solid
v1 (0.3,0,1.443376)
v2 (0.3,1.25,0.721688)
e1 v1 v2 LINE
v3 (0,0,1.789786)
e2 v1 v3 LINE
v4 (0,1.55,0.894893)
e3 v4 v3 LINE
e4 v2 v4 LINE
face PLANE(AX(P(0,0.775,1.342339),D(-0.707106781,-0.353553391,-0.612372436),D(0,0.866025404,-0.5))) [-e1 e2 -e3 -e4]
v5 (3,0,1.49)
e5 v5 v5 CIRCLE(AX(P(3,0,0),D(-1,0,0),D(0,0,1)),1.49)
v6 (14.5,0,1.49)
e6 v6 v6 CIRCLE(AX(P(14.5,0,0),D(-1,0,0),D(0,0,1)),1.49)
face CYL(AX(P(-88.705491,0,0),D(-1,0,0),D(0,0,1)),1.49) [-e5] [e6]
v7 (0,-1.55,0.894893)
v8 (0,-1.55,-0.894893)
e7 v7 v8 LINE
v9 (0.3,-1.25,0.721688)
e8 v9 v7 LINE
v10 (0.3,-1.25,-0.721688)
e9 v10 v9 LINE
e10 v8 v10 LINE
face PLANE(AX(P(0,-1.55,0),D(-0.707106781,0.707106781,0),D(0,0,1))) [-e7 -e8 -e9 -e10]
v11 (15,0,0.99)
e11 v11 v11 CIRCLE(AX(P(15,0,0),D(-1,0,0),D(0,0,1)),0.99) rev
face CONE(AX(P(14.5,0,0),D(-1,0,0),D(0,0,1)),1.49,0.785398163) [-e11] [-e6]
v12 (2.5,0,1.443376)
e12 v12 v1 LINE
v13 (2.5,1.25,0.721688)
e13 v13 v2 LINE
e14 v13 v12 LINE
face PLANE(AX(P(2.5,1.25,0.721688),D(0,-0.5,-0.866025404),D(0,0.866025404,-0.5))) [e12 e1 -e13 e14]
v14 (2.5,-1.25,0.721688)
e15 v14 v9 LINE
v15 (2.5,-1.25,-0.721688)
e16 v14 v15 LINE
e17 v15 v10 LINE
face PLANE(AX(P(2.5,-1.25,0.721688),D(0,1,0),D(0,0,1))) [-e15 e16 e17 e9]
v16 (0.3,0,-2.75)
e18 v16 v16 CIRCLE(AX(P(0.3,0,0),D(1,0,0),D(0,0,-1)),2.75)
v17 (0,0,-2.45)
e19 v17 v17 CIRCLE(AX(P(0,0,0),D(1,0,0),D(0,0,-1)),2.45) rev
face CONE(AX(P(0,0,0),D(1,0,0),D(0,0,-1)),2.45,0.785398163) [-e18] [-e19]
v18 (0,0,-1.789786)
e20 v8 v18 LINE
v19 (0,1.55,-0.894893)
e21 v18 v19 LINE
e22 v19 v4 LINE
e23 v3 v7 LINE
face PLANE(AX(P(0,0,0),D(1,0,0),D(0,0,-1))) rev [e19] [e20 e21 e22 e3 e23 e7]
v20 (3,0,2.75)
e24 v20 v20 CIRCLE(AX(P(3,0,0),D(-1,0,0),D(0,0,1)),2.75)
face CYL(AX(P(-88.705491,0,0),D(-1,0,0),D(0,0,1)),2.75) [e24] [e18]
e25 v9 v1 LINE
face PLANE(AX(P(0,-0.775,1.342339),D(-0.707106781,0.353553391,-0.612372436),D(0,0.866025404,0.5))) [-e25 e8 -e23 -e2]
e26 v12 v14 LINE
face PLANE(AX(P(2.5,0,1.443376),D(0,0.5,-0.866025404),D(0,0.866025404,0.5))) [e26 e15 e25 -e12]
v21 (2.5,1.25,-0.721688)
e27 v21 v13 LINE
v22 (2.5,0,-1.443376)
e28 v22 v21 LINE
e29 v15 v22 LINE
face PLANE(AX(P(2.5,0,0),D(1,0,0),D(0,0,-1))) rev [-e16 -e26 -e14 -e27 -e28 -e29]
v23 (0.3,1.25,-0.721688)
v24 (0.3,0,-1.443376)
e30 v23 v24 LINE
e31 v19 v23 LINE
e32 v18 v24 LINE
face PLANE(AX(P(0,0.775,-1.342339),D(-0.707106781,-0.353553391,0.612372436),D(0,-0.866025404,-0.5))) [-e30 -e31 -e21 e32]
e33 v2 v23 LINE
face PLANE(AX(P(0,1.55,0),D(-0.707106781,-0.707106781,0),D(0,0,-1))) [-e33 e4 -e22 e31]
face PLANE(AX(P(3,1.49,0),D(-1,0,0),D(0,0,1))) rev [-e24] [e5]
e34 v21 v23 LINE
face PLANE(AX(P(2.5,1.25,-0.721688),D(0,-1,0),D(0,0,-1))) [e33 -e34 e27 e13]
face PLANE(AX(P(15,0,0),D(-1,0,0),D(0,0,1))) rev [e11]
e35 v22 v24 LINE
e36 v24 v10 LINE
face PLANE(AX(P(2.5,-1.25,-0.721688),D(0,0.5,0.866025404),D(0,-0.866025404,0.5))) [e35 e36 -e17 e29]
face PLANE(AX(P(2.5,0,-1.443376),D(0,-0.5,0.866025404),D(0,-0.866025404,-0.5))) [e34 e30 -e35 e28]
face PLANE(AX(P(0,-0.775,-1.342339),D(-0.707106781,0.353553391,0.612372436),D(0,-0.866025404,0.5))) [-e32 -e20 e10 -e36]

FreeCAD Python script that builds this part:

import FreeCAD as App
import Part
import Sketcher
from FreeCAD import Vector
Q = App.Units.Quantity


def edges_at(feature, points):
    """Names of the edges that pass closest to the given points."""
    edges = feature.Shape.Edges
    near = lambda p: min(range(len(edges)), key=lambda i: edges[i].distToShape(Part.Vertex(*p))[0])
    return sorted({f"Edge{near(p) + 1}" for p in points})


def add_polygon(sketch, points):
    """Adds a closed chain of lines whose ends are joined by coincident constraints."""
    first, n = sketch.GeometryCount, len(points)
    for a, b in zip(points, points[1:] + points[:1]):
        sketch.addGeometry(Part.LineSegment(App.Vector(*a, 0), App.Vector(*b, 0)), False)
    for i in range(n):
        sketch.addConstraint(Sketcher.Constraint("Coincident", first + i, 2, first + (i + 1) % n, 1))

doc = App.newDocument("Part")
params = doc.addObject("Spreadsheet::Sheet", "Params")
for row, (alias, value) in enumerate([
    ("sketch1_width", "15 mm"),
    ("sketch1_width2", "12 mm"),
    ("sketch1_height", "2.75 mm"),
    ("sketch1_height2", "1.49 mm"),
    ("revolution_angle", "360 deg"),
    ("chamfer_size", "0.5 mm"),
    ("chamfer2_size", "0.3 mm"),
    ("pocket1_length", "2.5 mm"),
    ("chamfer3_size", "0.3 mm"),
], start=1):
    params.set(f"A{row}", alias)
    params.set(f"B{row}", "=" + value)
    params.setAlias(f"B{row}", alias)

body = doc.addObject("PartDesign::Body", "Body")

sketch1 = body.newObject("Sketcher::SketchObject", "Sketch")
sketch1.AttachmentSupport = (doc.getObject("XY_Plane"), [""])
sketch1.MapMode = "FlatFace"
add_polygon(sketch1, [(0, 2.75), (0, 0), (15, 0), (15, 1.49), (3, 1.49), (3, 2.75)])
sketch1.addConstraint(Sketcher.Constraint("Vertical", 0))
sketch1.addConstraint(Sketcher.Constraint("Horizontal", 1))
sketch1.addConstraint(Sketcher.Constraint("Vertical", 2))
sketch1.addConstraint(Sketcher.Constraint("Horizontal", 3))
sketch1.addConstraint(Sketcher.Constraint("Vertical", 4))
sketch1.addConstraint(Sketcher.Constraint("Horizontal", 5))
sketch1.addConstraint(Sketcher.Constraint("Coincident", 0, 2, -1, 1))
sketch1.addConstraint(Sketcher.Constraint("DistanceX", 1, 1, 1, 2, 15.0))
sketch1.addConstraint(Sketcher.Constraint("DistanceX", 3, 2, 3, 1, 12.0))
sketch1.addConstraint(Sketcher.Constraint("DistanceY", 0, 2, 0, 1, 2.75))
sketch1.addConstraint(Sketcher.Constraint("DistanceY", 2, 1, 2, 2, 1.49))
sketch1.setExpression("Constraints[13]", "Params.sketch1_width")
sketch1.setExpression("Constraints[14]", "Params.sketch1_width2")
sketch1.setExpression("Constraints[15]", "Params.sketch1_height")
sketch1.setExpression("Constraints[16]", "Params.sketch1_height2")
revolution = body.newObject("PartDesign::Revolution", "Revolution")
revolution.Profile = sketch1
revolution.ReferenceAxis = (sketch1, ["H_Axis"])
revolution.setExpression("Angle", "Params.revolution_angle")
doc.recompute()

chamfer = body.newObject("PartDesign::Chamfer", "Chamfer")
chamfer.Base = (revolution, edges_at(revolution, [(15, -1.49, 0)]))
chamfer.setExpression("Size", "Params.chamfer_size")
doc.recompute()

chamfer2 = body.newObject("PartDesign::Chamfer", "Chamfer001")
chamfer2.Base = (chamfer, edges_at(chamfer, [(0, -2.75, 0)]))
chamfer2.setExpression("Size", "Params.chamfer2_size")

sketch2 = body.newObject("Sketcher::SketchObject", "Sketch001")
sketch2.AttachmentSupport = (doc.getObject("YZ_Plane"), [""])
sketch2.MapMode = "FlatFace"
add_polygon(sketch2, [(0, 1.443376), (-1.25, 0.721688), (-1.25, -0.721688), (0, -1.443376), (1.25, -0.721688), (1.25, 0.721688)])
sketch2.addConstraint(Sketcher.Constraint("Vertical", 1))
sketch2.addConstraint(Sketcher.Constraint("Vertical", 4))
sketch2.addConstraint(Sketcher.Constraint("Symmetric", 0, 2, 3, 2, -1, 1))
sketch2.addConstraint(Sketcher.Constraint("Symmetric", 2, 2, 5, 2, -1, 1))
sketch2.addConstraint(Sketcher.Constraint("PointOnObject", 2, 2, -2))
sketch2.addConstraint(Sketcher.Constraint("Parallel", 2, 5))
sketch2.addConstraint(Sketcher.Constraint("Horizontal", 1, 2, 3, 2))
sketch2.addConstraint(Sketcher.Constraint("Angle", 0, Q("-150 deg")))
sketch2.addConstraint(Sketcher.Constraint("DistanceX", 1, 2, 3, 2, 2.5))
sketch2.addConstraint(Sketcher.Constraint("DistanceY", 1, 2, 1, 1, 1.443376))
pocket1 = body.newObject("PartDesign::Pocket", "Pocket")
pocket1.Profile = sketch2
pocket1.setExpression("Length", "Params.pocket1_length")
pocket1.Reversed = True
doc.recompute()

chamfer3 = body.newObject("PartDesign::Chamfer", "Chamfer002")
chamfer3.Base = (pocket1, edges_at(pocket1, [
    (0, 0.625, 1.083),
    (0, -0.625, 1.083),
    (0, -1.25, 0),
    (0, -0.625, -1.083),
    (0, 0.625, -1.083),
    (0, 1.25, 0),
]))
chamfer3.setExpression("Size", "Params.chamfer3_size")

doc.recompute()
